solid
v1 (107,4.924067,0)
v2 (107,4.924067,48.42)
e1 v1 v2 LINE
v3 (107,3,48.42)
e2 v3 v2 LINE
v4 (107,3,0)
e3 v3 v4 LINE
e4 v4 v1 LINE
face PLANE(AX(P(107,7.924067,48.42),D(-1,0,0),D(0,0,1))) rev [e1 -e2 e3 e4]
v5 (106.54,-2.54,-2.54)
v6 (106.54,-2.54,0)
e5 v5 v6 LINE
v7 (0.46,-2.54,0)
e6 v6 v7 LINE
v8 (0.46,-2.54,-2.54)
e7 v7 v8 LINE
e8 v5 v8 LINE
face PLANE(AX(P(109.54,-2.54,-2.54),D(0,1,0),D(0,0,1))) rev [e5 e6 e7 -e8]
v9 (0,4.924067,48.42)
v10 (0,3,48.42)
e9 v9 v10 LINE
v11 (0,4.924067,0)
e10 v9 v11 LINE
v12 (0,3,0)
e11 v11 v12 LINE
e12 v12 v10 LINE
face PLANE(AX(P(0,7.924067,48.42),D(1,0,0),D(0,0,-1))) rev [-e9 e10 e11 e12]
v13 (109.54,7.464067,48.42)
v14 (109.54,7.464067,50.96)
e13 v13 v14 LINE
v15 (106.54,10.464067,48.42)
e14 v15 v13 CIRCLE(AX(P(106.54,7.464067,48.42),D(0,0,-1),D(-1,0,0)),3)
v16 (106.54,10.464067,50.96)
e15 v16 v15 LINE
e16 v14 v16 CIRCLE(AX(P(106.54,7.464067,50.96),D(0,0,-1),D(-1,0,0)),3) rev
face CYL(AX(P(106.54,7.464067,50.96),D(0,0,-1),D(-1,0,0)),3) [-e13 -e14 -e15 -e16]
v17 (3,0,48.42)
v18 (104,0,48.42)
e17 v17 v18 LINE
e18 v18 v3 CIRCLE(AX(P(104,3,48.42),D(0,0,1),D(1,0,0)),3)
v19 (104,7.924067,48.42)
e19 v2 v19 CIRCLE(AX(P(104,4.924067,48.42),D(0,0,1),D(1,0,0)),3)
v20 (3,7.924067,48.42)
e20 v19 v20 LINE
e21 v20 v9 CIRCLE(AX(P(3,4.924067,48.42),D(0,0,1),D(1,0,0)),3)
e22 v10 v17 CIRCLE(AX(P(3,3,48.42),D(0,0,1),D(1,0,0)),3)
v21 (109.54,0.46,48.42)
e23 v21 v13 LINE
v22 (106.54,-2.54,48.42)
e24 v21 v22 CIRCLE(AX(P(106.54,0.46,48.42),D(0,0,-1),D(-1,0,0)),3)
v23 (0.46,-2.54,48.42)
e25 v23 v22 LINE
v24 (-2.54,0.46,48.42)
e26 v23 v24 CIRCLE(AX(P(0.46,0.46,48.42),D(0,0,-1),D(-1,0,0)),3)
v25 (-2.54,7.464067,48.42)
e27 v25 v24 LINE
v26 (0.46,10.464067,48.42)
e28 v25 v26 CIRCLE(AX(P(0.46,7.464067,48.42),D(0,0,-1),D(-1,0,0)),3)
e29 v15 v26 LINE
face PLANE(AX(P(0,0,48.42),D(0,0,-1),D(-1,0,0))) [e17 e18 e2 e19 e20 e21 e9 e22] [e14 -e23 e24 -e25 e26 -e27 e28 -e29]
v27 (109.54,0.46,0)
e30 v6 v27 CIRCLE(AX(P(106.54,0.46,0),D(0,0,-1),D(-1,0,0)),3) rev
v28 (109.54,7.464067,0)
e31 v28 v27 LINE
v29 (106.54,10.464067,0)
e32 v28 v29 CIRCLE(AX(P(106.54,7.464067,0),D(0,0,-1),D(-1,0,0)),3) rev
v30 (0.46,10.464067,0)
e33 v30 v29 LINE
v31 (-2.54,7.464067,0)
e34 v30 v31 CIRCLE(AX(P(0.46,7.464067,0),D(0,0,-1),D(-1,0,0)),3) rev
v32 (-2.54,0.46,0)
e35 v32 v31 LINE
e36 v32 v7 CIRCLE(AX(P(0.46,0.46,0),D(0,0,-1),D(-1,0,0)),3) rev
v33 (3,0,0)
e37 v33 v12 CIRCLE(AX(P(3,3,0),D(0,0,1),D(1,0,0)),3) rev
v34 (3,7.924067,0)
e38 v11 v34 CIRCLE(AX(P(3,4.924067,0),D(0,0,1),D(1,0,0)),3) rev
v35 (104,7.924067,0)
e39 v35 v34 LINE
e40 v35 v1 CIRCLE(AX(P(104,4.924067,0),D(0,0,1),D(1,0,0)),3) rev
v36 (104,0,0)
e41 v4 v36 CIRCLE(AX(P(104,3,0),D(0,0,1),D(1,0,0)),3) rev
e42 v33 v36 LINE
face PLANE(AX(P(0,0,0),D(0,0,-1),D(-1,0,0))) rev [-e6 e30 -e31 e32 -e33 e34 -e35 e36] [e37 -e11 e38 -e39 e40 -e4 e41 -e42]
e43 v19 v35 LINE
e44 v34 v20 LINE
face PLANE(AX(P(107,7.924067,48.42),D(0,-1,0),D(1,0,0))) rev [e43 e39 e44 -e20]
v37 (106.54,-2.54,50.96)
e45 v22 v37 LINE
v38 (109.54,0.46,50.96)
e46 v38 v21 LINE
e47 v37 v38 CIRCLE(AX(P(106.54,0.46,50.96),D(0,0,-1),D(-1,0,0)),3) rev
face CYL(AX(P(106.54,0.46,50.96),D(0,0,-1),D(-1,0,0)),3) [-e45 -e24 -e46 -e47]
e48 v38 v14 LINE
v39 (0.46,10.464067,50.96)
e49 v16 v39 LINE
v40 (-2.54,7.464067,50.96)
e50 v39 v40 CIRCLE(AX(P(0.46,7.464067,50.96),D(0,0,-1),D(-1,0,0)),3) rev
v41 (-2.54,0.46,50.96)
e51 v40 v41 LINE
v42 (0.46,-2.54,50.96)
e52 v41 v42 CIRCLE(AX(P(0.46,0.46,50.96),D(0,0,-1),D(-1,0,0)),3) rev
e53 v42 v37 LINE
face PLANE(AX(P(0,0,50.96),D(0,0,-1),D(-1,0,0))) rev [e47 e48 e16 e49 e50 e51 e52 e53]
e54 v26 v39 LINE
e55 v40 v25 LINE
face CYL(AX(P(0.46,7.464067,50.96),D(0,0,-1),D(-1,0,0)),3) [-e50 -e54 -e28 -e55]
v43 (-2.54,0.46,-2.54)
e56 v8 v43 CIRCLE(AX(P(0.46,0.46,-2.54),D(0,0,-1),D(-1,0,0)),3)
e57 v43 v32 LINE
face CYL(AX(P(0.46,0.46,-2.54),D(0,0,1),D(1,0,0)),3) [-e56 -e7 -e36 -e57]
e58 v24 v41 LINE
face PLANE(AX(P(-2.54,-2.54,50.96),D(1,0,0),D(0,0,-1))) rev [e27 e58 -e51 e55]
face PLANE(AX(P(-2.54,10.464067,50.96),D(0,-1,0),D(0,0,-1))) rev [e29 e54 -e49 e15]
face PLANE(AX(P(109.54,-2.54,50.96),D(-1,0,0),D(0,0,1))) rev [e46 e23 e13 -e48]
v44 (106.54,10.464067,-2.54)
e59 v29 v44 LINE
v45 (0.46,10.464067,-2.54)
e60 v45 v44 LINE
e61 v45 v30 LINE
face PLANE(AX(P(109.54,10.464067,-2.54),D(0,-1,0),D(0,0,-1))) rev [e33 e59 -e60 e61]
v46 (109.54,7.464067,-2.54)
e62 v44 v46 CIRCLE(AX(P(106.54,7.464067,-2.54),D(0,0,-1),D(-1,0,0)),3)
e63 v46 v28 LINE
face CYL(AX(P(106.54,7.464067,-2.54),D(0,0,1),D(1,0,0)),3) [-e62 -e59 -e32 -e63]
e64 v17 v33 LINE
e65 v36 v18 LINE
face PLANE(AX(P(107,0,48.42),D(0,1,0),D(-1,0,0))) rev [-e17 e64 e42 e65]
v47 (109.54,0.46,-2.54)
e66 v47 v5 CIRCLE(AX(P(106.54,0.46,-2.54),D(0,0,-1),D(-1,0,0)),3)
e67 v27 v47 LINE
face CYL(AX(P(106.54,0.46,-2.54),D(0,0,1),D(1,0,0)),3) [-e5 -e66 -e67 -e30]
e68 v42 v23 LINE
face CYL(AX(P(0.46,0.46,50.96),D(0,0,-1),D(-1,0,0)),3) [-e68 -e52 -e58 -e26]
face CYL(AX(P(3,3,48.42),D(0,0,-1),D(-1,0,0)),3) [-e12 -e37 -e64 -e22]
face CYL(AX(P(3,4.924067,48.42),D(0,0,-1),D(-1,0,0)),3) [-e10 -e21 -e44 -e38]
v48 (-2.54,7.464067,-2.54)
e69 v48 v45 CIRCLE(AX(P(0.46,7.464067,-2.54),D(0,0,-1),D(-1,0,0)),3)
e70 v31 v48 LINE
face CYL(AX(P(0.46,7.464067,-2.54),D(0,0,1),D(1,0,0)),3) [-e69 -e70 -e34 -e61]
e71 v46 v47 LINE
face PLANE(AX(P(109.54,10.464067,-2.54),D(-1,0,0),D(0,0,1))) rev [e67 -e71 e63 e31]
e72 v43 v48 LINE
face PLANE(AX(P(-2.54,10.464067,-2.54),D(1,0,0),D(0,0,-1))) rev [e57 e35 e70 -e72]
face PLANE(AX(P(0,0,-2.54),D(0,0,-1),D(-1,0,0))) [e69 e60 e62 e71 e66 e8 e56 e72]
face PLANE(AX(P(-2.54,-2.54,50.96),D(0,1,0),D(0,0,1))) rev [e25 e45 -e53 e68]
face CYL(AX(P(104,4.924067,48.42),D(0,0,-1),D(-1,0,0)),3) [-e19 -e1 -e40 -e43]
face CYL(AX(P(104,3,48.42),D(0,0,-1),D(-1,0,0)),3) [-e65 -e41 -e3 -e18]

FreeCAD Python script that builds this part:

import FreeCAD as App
import Part
import Sketcher
from FreeCAD import Vector
Q = App.Units.Quantity


def edges_at(feature, points):
    """Names of the edges that pass closest to the given points."""
    edges = feature.Shape.Edges
    near = lambda p: min(range(len(edges)), key=lambda i: edges[i].distToShape(Part.Vertex(*p))[0])
    return sorted({f"Edge{near(p) + 1}" for p in points})


def add_polygon(sketch, points):
    """Adds a closed chain of lines whose ends are joined by coincident constraints."""
    first, n = sketch.GeometryCount, len(points)
    for a, b in zip(points, points[1:] + points[:1]):
        sketch.addGeometry(Part.LineSegment(App.Vector(*a, 0), App.Vector(*b, 0)), False)
    for i in range(n):
        sketch.addConstraint(Sketcher.Constraint("Coincident", first + i, 2, first + (i + 1) % n, 1))

doc = App.newDocument("Part")
body = doc.addObject("PartDesign::Body", "Body")

# Sketch on XY plane
sketch1 = body.newObject("Sketcher::SketchObject", "Sketch")
sketch1.AttachmentSupport = (doc.getObject("XY_Plane"), [""])
sketch1.MapMode = "FlatFace"
add_polygon(sketch1, [(0, 8), (0, 0), (107, 0), (107, 8)])  # lines 0-3
sketch1.addConstraint(Sketcher.Constraint("Vertical", 0))
sketch1.addConstraint(Sketcher.Constraint("Horizontal", 1))
sketch1.addConstraint(Sketcher.Constraint("Vertical", 2))
sketch1.addConstraint(Sketcher.Constraint("Horizontal", 3))
sketch1.addConstraint(Sketcher.Constraint("Coincident", 0, 2, -1, 1))
sketch1.addConstraint(Sketcher.Constraint("DistanceX", 1, 1, 1, 2, Q("107 mm")))
sketch1.addConstraint(Sketcher.Constraint("DistanceY", 0, 2, 0, 1, Q("7.924067 mm")))
pad1 = body.newObject("PartDesign::Pad", "Pad")
pad1.Profile = sketch1
pad1.Length = 48.42
doc.recompute()

fillet = body.newObject("PartDesign::Fillet", "Fillet")
fillet.Base = (pad1, edges_at(pad1, [
    (0, 0, 24.21),
    (0, 7.924, 24.21),
    (107, 7.924, 24.21),
    (107, 0, 24.21),
]))
fillet.Radius = 3

# Sketch on XY plane
sketch2 = body.newObject("Sketcher::SketchObject", "Sketch001")
sketch2.AttachmentSupport = (doc.getObject("XY_Plane"), [""])
sketch2.MapMode = "FlatFace"
sketch2.AttachmentOffset = App.Placement(Vector(0, 0, 48.42), App.Rotation())
add_polygon(sketch2, [(-3, 10), (-3, -3), (110, -3), (110, 10)])  # lines 0-3
sketch2.addConstraint(Sketcher.Constraint("Vertical", 0))
sketch2.addConstraint(Sketcher.Constraint("Horizontal", 1))
sketch2.addConstraint(Sketcher.Constraint("Vertical", 2))
sketch2.addConstraint(Sketcher.Constraint("Horizontal", 3))
sketch2.addConstraint(Sketcher.Constraint("DistanceX", 1, 1, 1, 2, Q("112.08 mm")))
sketch2.addConstraint(Sketcher.Constraint("DistanceX", 0, 2, -1, 1, Q("2.54 mm")))
sketch2.addConstraint(Sketcher.Constraint("DistanceY", 0, 2, -1, 1, Q("2.54 mm")))
sketch2.addConstraint(Sketcher.Constraint("DistanceY", 0, 2, 0, 1, Q("13.004067 mm")))
pad2 = body.newObject("PartDesign::Pad", "Pad001")
pad2.Profile = sketch2
pad2.Length = 2.54

# Sketch on XY plane
sketch3 = body.newObject("Sketcher::SketchObject", "Sketch002")
sketch3.AttachmentSupport = (doc.getObject("XY_Plane"), [""])
sketch3.MapMode = "FlatFace"
add_polygon(sketch3, [(110, 10), (110, -3), (-3, -3), (-3, 10)])  # lines 0-3
sketch3.addConstraint(Sketcher.Constraint("Vertical", 0))
sketch3.addConstraint(Sketcher.Constraint("Horizontal", 1))
sketch3.addConstraint(Sketcher.Constraint("Vertical", 2))
sketch3.addConstraint(Sketcher.Constraint("Horizontal", 3))
sketch3.addConstraint(Sketcher.Constraint("DistanceX", 1, 2, 1, 1, Q("112.08 mm")))
sketch3.addConstraint(Sketcher.Constraint("DistanceX", -1, 1, 0, 2, Q("109.54 mm")))
sketch3.addConstraint(Sketcher.Constraint("DistanceY", 0, 2, -1, 1, Q("2.54 mm")))
sketch3.addConstraint(Sketcher.Constraint("DistanceY", 0, 2, 0, 1, Q("13.004067 mm")))
pad3 = body.newObject("PartDesign::Pad", "Pad002")
pad3.Profile = sketch3
pad3.Length = 2.54
pad3.Reversed = True
doc.recompute()

fillet2 = body.newObject("PartDesign::Fillet", "Fillet001")
fillet2.Base = (pad3, edges_at(pad3, [
    (-2.54, 10.464, 49.69),
    (-2.54, -2.54, 49.69),
    (109.54, -2.54, 49.69),
    (109.54, 10.464, 49.69),
    (109.54, 10.464, -1.27),
    (109.54, -2.54, -1.27),
    (-2.54, -2.54, -1.27),
    (-2.54, 10.464, -1.27),
]))
fillet2.Radius = 3

doc.recompute()
